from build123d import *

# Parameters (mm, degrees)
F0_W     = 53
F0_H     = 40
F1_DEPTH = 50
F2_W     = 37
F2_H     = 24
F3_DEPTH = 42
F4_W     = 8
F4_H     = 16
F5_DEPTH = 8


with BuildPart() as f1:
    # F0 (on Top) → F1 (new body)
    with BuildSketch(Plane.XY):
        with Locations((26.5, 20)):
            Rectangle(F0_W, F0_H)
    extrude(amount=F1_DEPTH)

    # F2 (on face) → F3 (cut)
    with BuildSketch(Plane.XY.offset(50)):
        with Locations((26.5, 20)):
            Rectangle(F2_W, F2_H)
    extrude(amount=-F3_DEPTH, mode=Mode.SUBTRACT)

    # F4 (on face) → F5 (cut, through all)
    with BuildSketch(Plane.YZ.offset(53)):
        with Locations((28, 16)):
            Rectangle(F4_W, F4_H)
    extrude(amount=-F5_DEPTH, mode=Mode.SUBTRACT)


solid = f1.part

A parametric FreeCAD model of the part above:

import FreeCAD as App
import Part
import Sketcher

V = App.Vector

doc = App.newDocument("Part")
body = doc.addObject("PartDesign::Body", "Body")

sketch1 = body.newObject("Sketcher::SketchObject", "Sketch")
sketch1.AttachmentSupport = (doc.getObject("XY_Plane"), [""])
sketch1.MapMode = "FlatFace"
sketch1.addGeometry([
    Part.LineSegment(V(0, 40, 0), V(0, 0, 0)),
    Part.LineSegment(V(0, 0, 0), V(53, 0, 0)),
    Part.LineSegment(V(53, 0, 0), V(53, 40, 0)),
    Part.LineSegment(V(53, 40, 0), V(0, 40, 0)),
], False)
sketch1.addConstraint([
    Sketcher.Constraint("Coincident", 0, 2, 1, 1),
    Sketcher.Constraint("Coincident", 1, 2, 2, 1),
    Sketcher.Constraint("Coincident", 2, 2, 3, 1),
    Sketcher.Constraint("Coincident", 3, 2, 0, 1),
    Sketcher.Constraint("Vertical", 0),
    Sketcher.Constraint("Horizontal", 1),
    Sketcher.Constraint("Vertical", 2),
    Sketcher.Constraint("Horizontal", 3),
    Sketcher.Constraint("Coincident", 0, 2, -1, 1),
    Sketcher.Constraint("DistanceX", 1, 1, 1, 2, 53.0),
    Sketcher.Constraint("DistanceY", 0, 2, 0, 1, 40.0),
])
pad1 = body.newObject("PartDesign::Pad", "Pad")
pad1.Profile = sketch1
pad1.Length = 50

sketch2 = body.newObject("Sketcher::SketchObject", "Sketch001")
sketch2.AttachmentSupport = (doc.getObject("XY_Plane"), [""])
sketch2.MapMode = "FlatFace"
sketch2.AttachmentOffset = App.Placement(V(0, 0, 50), App.Rotation())
sketch2.addGeometry([
    Part.LineSegment(V(8, 32, 0), V(8, 8, 0)),
    Part.LineSegment(V(8, 8, 0), V(45, 8, 0)),
    Part.LineSegment(V(45, 8, 0), V(45, 32, 0)),
    Part.LineSegment(V(45, 32, 0), V(8, 32, 0)),
], False)
sketch2.addConstraint([
    Sketcher.Constraint("Coincident", 0, 2, 1, 1),
    Sketcher.Constraint("Coincident", 1, 2, 2, 1),
    Sketcher.Constraint("Coincident", 2, 2, 3, 1),
    Sketcher.Constraint("Coincident", 3, 2, 0, 1),
    Sketcher.Constraint("Vertical", 0),
    Sketcher.Constraint("Horizontal", 1),
    Sketcher.Constraint("Vertical", 2),
    Sketcher.Constraint("Horizontal", 3),
    Sketcher.Constraint("DistanceX", 1, 1, 1, 2, 37.0),
    Sketcher.Constraint("DistanceY", 0, 2, 0, 1, 24.0),
    Sketcher.Constraint("DistanceX", -1, 1, 0, 2, 8.0),
    Sketcher.Constraint("DistanceY", -1, 1, 0, 2, 8.0),
])
pocket1 = body.newObject("PartDesign::Pocket", "Pocket")
pocket1.Profile = sketch2
pocket1.Length = 42

sketch3 = body.newObject("Sketcher::SketchObject", "Sketch002")
sketch3.AttachmentSupport = (doc.getObject("YZ_Plane"), [""])
sketch3.MapMode = "FlatFace"
sketch3.AttachmentOffset = App.Placement(V(0, 0, 53), App.Rotation())
sketch3.addGeometry([
    Part.LineSegment(V(24, 24, 0), V(24, 8, 0)),
    Part.LineSegment(V(24, 8, 0), V(32, 8, 0)),
    Part.LineSegment(V(32, 8, 0), V(32, 24, 0)),
    Part.LineSegment(V(32, 24, 0), V(24, 24, 0)),
], False)
sketch3.addConstraint([
    Sketcher.Constraint("Coincident", 0, 2, 1, 1),
    Sketcher.Constraint("Coincident", 1, 2, 2, 1),
    Sketcher.Constraint("Coincident", 2, 2, 3, 1),
    Sketcher.Constraint("Coincident", 3, 2, 0, 1),
    Sketcher.Constraint("Vertical", 0),
    Sketcher.Constraint("Horizontal", 1),
    Sketcher.Constraint("Vertical", 2),
    Sketcher.Constraint("Horizontal", 3),
    Sketcher.Constraint("DistanceX", 1, 1, 1, 2, 8.0),
    Sketcher.Constraint("DistanceY", 0, 2, 0, 1, 16.0),
    Sketcher.Constraint("DistanceX", -1, 1, 0, 2, 24.0),
    Sketcher.Constraint("DistanceY", -1, 1, 0, 2, 8.0),
])
pocket2 = body.newObject("PartDesign::Pocket", "Pocket001")
pocket2.Profile = sketch3
pocket2.Length = 8

doc.recompute()
